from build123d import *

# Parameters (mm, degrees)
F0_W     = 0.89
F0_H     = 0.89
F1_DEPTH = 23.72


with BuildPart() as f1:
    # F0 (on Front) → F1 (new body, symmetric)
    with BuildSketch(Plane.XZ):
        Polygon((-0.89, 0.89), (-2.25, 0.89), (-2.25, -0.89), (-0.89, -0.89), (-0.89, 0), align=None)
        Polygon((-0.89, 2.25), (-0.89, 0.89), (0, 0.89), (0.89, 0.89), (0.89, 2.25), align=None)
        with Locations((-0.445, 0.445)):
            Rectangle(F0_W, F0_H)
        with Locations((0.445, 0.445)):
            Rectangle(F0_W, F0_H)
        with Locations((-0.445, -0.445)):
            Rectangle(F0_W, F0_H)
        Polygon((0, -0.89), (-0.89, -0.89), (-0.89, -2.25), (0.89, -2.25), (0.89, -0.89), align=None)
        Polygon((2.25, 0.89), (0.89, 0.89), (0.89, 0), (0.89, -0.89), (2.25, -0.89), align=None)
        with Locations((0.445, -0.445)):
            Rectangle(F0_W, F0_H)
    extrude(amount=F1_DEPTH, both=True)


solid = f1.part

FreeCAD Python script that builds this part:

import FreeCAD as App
import Part
import Sketcher


def add_polygon(sketch, points):
    """Adds a closed chain of lines whose ends are joined by coincident constraints."""
    first, n = sketch.GeometryCount, len(points)
    for a, b in zip(points, points[1:] + points[:1]):
        sketch.addGeometry(Part.LineSegment(App.Vector(*a, 0), App.Vector(*b, 0)), False)
    for i in range(n):
        sketch.addConstraint(Sketcher.Constraint("Coincident", first + i, 2, first + (i + 1) % n, 1))

doc = App.newDocument("Part")
params = doc.addObject("Spreadsheet::Sheet", "Params")
for row, (alias, value) in enumerate([
    ("sketch1_width", "1.36 mm"),
    ("sketch1_width2", "1.78 mm"),
    ("pad1_length", "47.44 mm"),
], start=1):
    params.set(f"A{row}", alias)
    params.set(f"B{row}", "=" + value)
    params.setAlias(f"B{row}", alias)

body = doc.addObject("PartDesign::Body", "Body")

# Sketch on XZ plane
sketch1 = doc.addObject("Sketcher::SketchObject", "Sketch")
body.addObject(sketch1)
sketch1.AttachmentSupport = (doc.XZ_Plane, [""])
sketch1.MapMode = "FlatFace"
add_polygon(sketch1, [(0.9, -2.2), (0.9, -0.9), (2.2, -0.9), (2.2, 0.9), (0.9, 0.9), (0.9, 2.2), (-0.9, 2.2), (-0.9, 0.9), (-2.2, 0.9), (-2.2, -0.9), (-0.9, -0.9), (-0.9, -2.2)])  # lines 0-11
sketch1.addConstraint([
    Sketcher.Constraint("Vertical", 0),
    Sketcher.Constraint("Horizontal", 1),
    Sketcher.Constraint("Vertical", 2),
    Sketcher.Constraint("Horizontal", 3),
    Sketcher.Constraint("Vertical", 4),
    Sketcher.Constraint("Horizontal", 5),
    Sketcher.Constraint("Vertical", 6),
    Sketcher.Constraint("Horizontal", 7),
    Sketcher.Constraint("Vertical", 8),
    Sketcher.Constraint("Horizontal", 9),
    Sketcher.Constraint("Vertical", 10),
    Sketcher.Constraint("Horizontal", 11),
    Sketcher.Constraint("Symmetric", 0, 2, 6, 2, -1, 1),
    Sketcher.Constraint("Symmetric", 2, 2, 8, 2, -1, 1),
    Sketcher.Constraint("Symmetric", 4, 2, 10, 2, -1, 1),
    Sketcher.Constraint("Symmetric", 3, 2, 6, 2, -2),
    Sketcher.Constraint("Equal", 9, 0),
    Sketcher.Constraint("Equal", 11, 2),
    Sketcher.Constraint("DistanceX", 1, 1, 1, 2, 1.36),
    Sketcher.Constraint("DistanceX", 5, 2, 5, 1, 1.78),
])
sketch1.setExpression("Constraints[30]", "Params.sketch1_width")
sketch1.setExpression("Constraints[31]", "Params.sketch1_width2")
pad1 = doc.addObject("PartDesign::Pad", "Pad")
body.addObject(pad1)
pad1.Profile = sketch1
pad1.setExpression("Length", "Params.pad1_length")
pad1.Midplane = True

doc.recompute()
